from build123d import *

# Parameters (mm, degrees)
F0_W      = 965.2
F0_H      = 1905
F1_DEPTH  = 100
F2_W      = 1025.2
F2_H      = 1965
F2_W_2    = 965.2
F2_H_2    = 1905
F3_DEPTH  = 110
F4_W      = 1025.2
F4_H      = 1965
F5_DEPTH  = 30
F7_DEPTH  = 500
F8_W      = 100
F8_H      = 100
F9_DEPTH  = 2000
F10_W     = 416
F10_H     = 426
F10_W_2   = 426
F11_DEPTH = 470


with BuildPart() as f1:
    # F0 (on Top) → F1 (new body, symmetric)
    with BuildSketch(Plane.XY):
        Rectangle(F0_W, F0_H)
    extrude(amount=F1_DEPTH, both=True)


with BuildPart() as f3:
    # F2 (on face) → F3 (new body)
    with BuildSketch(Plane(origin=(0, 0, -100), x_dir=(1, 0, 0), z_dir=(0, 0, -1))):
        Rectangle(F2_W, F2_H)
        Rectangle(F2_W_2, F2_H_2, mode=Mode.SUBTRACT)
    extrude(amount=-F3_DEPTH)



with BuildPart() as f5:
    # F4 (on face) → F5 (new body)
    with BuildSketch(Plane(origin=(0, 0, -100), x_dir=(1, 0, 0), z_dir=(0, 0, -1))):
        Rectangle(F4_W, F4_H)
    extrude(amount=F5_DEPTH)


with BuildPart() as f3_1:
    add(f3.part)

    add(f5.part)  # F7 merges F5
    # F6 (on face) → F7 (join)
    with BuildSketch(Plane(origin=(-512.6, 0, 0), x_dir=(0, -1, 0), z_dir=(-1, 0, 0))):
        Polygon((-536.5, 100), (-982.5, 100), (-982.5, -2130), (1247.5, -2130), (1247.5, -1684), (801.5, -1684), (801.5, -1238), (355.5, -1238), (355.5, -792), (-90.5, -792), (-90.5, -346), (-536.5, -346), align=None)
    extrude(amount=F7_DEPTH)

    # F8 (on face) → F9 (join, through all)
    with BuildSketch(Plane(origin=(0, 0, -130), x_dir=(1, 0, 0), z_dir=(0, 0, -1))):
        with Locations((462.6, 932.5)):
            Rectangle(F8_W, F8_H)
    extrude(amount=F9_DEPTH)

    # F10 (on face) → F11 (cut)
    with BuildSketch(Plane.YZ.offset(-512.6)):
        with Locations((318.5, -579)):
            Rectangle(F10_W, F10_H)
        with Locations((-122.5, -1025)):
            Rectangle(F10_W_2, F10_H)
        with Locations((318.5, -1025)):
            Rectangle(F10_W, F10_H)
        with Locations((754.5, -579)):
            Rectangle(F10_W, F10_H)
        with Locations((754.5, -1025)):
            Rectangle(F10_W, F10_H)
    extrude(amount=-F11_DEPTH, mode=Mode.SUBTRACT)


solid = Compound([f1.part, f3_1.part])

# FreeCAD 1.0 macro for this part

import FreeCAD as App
import Part
import Sketcher

V = App.Vector
Q = App.Units.Quantity

doc = App.newDocument("Part")
body = doc.addObject("PartDesign::Body", "Body")

# Sketch on XY plane
sketch1 = body.newObject("Sketcher::SketchObject", "Sketch")
sketch1.AttachmentSupport = (doc.getObject("XY_Plane"), [""])
sketch1.MapMode = "FlatFace"
sketch1.addGeometry([
    Part.LineSegment(V(-482.6, 952.5, 0), V(-482.6, -952.5, 0)),
    Part.LineSegment(V(-482.6, -952.5, 0), V(482.6, -952.5, 0)),
    Part.LineSegment(V(482.6, -952.5, 0), V(482.6, 952.5, 0)),
    Part.LineSegment(V(482.6, 952.5, 0), V(-482.6, 952.5, 0)),
], False)
sketch1.addConstraint([
    Sketcher.Constraint("Coincident", 0, 2, 1, 1),
    Sketcher.Constraint("Coincident", 1, 2, 2, 1),
    Sketcher.Constraint("Coincident", 2, 2, 3, 1),
    Sketcher.Constraint("Coincident", 3, 2, 0, 1),
    Sketcher.Constraint("Vertical", 0),
    Sketcher.Constraint("Horizontal", 1),
    Sketcher.Constraint("Vertical", 2),
    Sketcher.Constraint("Horizontal", 3),
    Sketcher.Constraint("Symmetric", 0, 2, 2, 2, -1, 1),
    Sketcher.Constraint("DistanceY", 0, 2, 0, 1, Q("1905 mm")),
    Sketcher.Constraint("DistanceX", 1, 1, 1, 2, Q("965.2 mm")),
])
pad1 = body.newObject("PartDesign::Pad", "Pad")
pad1.Profile = sketch1
pad1.Length = 200
pad1.Midplane = True
body2 = doc.addObject("PartDesign::Body", "Body001")

# Sketch on XY plane
sketch2 = body2.newObject("Sketcher::SketchObject", "Sketch001")
sketch2.AttachmentSupport = (doc.getObject("XY_Plane001"), [""])
sketch2.MapMode = "FlatFace"
sketch2.AttachmentOffset = App.Placement(V(0, 0, -100), App.Rotation())
sketch2.addGeometry([
    Part.LineSegment(V(-512.6, -982.5, 0), V(-512.6, 982.5, 0)),  # 0
    Part.LineSegment(V(-512.6, 982.5, 0), V(512.6, 982.5, 0)),  # 1
    Part.LineSegment(V(512.6, 982.5, 0), V(512.6, -982.5, 0)),  # 2
    Part.LineSegment(V(512.6, -982.5, 0), V(-512.6, -982.5, 0)),  # 3
    Part.LineSegment(V(482.6, 952.5, 0), V(-482.6, 952.5, 0)),  # 4
    Part.LineSegment(V(-482.6, 952.5, 0), V(-482.6, -952.5, 0)),  # 5
    Part.LineSegment(V(-482.6, -952.5, 0), V(482.6, -952.5, 0)),  # 6
    Part.LineSegment(V(482.6, -952.5, 0), V(482.6, 952.5, 0)),  # 7
], False)
sketch2.addConstraint([
    Sketcher.Constraint("Coincident", 0, 2, 1, 1),
    Sketcher.Constraint("Coincident", 1, 2, 2, 1),
    Sketcher.Constraint("Coincident", 2, 2, 3, 1),
    Sketcher.Constraint("Coincident", 3, 2, 0, 1),
    Sketcher.Constraint("Coincident", 4, 2, 5, 1),
    Sketcher.Constraint("Coincident", 5, 2, 6, 1),
    Sketcher.Constraint("Coincident", 6, 2, 7, 1),
    Sketcher.Constraint("Coincident", 7, 2, 4, 1),
    Sketcher.Constraint("Vertical", 0),
    Sketcher.Constraint("Horizontal", 1),
    Sketcher.Constraint("Vertical", 2),
    Sketcher.Constraint("Horizontal", 3),
    Sketcher.Constraint("Horizontal", 4),
    Sketcher.Constraint("Vertical", 5),
    Sketcher.Constraint("Horizontal", 6),
    Sketcher.Constraint("Vertical", 7),
    Sketcher.Constraint("Symmetric", 0, 2, 2, 2, -1, 1),
    Sketcher.Constraint("Symmetric", 4, 2, 6, 2, -1, 1),
    Sketcher.Constraint("DistanceY", 0, 1, 0, 2, Q("1965 mm")),
    Sketcher.Constraint("DistanceY", 5, 2, 5, 1, Q("1905 mm")),
    Sketcher.Constraint("DistanceX", 1, 1, 1, 2, Q("1025.2 mm")),
    Sketcher.Constraint("DistanceX", 4, 2, 4, 1, Q("965.2 mm")),
])
pad2 = body2.newObject("PartDesign::Pad", "Pad001")
pad2.Profile = sketch2
pad2.Length = 110
body3 = doc.addObject("PartDesign::Body", "Body002")

# Sketch on XY plane
sketch3 = body3.newObject("Sketcher::SketchObject", "Sketch002")
sketch3.AttachmentSupport = (doc.getObject("XY_Plane002"), [""])
sketch3.MapMode = "FlatFace"
sketch3.AttachmentOffset = App.Placement(V(0, 0, -100), App.Rotation())
sketch3.addGeometry([
    Part.LineSegment(V(-512.6, -982.5, 0), V(-512.6, 982.5, 0)),
    Part.LineSegment(V(-512.6, 982.5, 0), V(512.6, 982.5, 0)),
    Part.LineSegment(V(512.6, 982.5, 0), V(512.6, -982.5, 0)),
    Part.LineSegment(V(512.6, -982.5, 0), V(-512.6, -982.5, 0)),
], False)
sketch3.addConstraint([
    Sketcher.Constraint("Coincident", 0, 2, 1, 1),
    Sketcher.Constraint("Coincident", 1, 2, 2, 1),
    Sketcher.Constraint("Coincident", 2, 2, 3, 1),
    Sketcher.Constraint("Coincident", 3, 2, 0, 1),
    Sketcher.Constraint("Vertical", 0),
    Sketcher.Constraint("Horizontal", 1),
    Sketcher.Constraint("Vertical", 2),
    Sketcher.Constraint("Horizontal", 3),
    Sketcher.Constraint("Symmetric", 0, 2, 2, 2, -1, 1),
    Sketcher.Constraint("DistanceY", 0, 1, 0, 2, Q("1965 mm")),
    Sketcher.Constraint("DistanceX", 1, 1, 1, 2, Q("1025.2 mm")),
])
pad3 = body3.newObject("PartDesign::Pad", "Pad002")
pad3.Profile = sketch3
pad3.Length = 30
pad3.Reversed = True
doc.recompute()

boolean = body2.newObject("PartDesign::Boolean", "Boolean")
boolean.Type = "Fuse"
boolean.addObjects([body3])

# Sketch on YZ plane
sketch4 = body2.newObject("Sketcher::SketchObject", "Sketch003")
sketch4.AttachmentSupport = (doc.getObject("YZ_Plane001"), [""])
sketch4.MapMode = "FlatFace"
sketch4.AttachmentOffset = App.Placement(V(0, 0, -512.6), App.Rotation())
sketch4.addGeometry([
    Part.LineSegment(V(536.5, 100, 0), V(982.5, 100, 0)),  # 0
    Part.LineSegment(V(982.5, 100, 0), V(982.5, -2130, 0)),  # 1
    Part.LineSegment(V(982.5, -2130, 0), V(-1247.5, -2130, 0)),  # 2
    Part.LineSegment(V(-1247.5, -2130, 0), V(-1247.5, -1684, 0)),  # 3
    Part.LineSegment(V(-1247.5, -1684, 0), V(-801.5, -1684, 0)),  # 4
    Part.LineSegment(V(-801.5, -1684, 0), V(-801.5, -1238, 0)),  # 5
    Part.LineSegment(V(-801.5, -1238, 0), V(-355.5, -1238, 0)),  # 6
    Part.LineSegment(V(-355.5, -1238, 0), V(-355.5, -792, 0)),  # 7
    Part.LineSegment(V(-355.5, -792, 0), V(90.5, -792, 0)),  # 8
    Part.LineSegment(V(90.5, -792, 0), V(90.5, -346, 0)),  # 9
    Part.LineSegment(V(90.5, -346, 0), V(536.5, -346, 0)),  # 10
    Part.LineSegment(V(536.5, -346, 0), V(536.5, 100, 0)),  # 11
], False)
sketch4.addConstraint([
    Sketcher.Constraint("Coincident", 0, 2, 1, 1),
    Sketcher.Constraint("Coincident", 1, 2, 2, 1),
    Sketcher.Constraint("Coincident", 2, 2, 3, 1),
    Sketcher.Constraint("Coincident", 3, 2, 4, 1),
    Sketcher.Constraint("Coincident", 4, 2, 5, 1),
    Sketcher.Constraint("Coincident", 5, 2, 6, 1),
    Sketcher.Constraint("Coincident", 6, 2, 7, 1),
    Sketcher.Constraint("Coincident", 7, 2, 8, 1),
    Sketcher.Constraint("Coincident", 8, 2, 9, 1),
    Sketcher.Constraint("Coincident", 9, 2, 10, 1),
    Sketcher.Constraint("Coincident", 10, 2, 11, 1),
    Sketcher.Constraint("Coincident", 11, 2, 0, 1),
    Sketcher.Constraint("Horizontal", 0),
    Sketcher.Constraint("Vertical", 1),
    Sketcher.Constraint("Horizontal", 2),
    Sketcher.Constraint("Vertical", 3),
    Sketcher.Constraint("Horizontal", 4),
    Sketcher.Constraint("Vertical", 5),
    Sketcher.Constraint("Horizontal", 6),
    Sketcher.Constraint("Vertical", 7),
    Sketcher.Constraint("Horizontal", 8),
    Sketcher.Constraint("Vertical", 9),
    Sketcher.Constraint("Horizontal", 10),
    Sketcher.Constraint("Vertical", 11),
    Sketcher.Constraint("Equal", 0, 4),
    Sketcher.Constraint("Equal", 4, 6),
    Sketcher.Constraint("Equal", 6, 8),
    Sketcher.Constraint("Equal", 8, 10),
    Sketcher.Constraint("Equal", 2, 1),
    Sketcher.Constraint("Equal", 10, 3),
    Sketcher.Constraint("Equal", 3, 5),
    Sketcher.Constraint("Equal", 5, 7),
    Sketcher.Constraint("Equal", 7, 9),
    Sketcher.Constraint("DistanceX", 0, 1, 0, 2, Q("446 mm")),
    Sketcher.Constraint("DistanceY", -1, 1, 0, 2, Q("100 mm")),
    Sketcher.Constraint("DistanceX", -1, 1, 0, 2, Q("982.5 mm")),
])
pad4 = body2.newObject("PartDesign::Pad", "Pad003")
pad4.Profile = sketch4
pad4.Length = 500
pad4.Reversed = True

# Sketch on XY plane
sketch5 = body2.newObject("Sketcher::SketchObject", "Sketch004")
sketch5.AttachmentSupport = (doc.getObject("XY_Plane001"), [""])
sketch5.MapMode = "FlatFace"
sketch5.AttachmentOffset = App.Placement(V(0, 0, -130), App.Rotation())
sketch5.addGeometry([
    Part.LineSegment(V(412.6, -982.5, 0), V(412.6, -882.5, 0)),
    Part.LineSegment(V(412.6, -882.5, 0), V(512.6, -882.5, 0)),
    Part.LineSegment(V(512.6, -882.5, 0), V(512.6, -982.5, 0)),
    Part.LineSegment(V(512.6, -982.5, 0), V(412.6, -982.5, 0)),
], False)
sketch5.addConstraint([
    Sketcher.Constraint("Coincident", 0, 2, 1, 1),
    Sketcher.Constraint("Coincident", 1, 2, 2, 1),
    Sketcher.Constraint("Coincident", 2, 2, 3, 1),
    Sketcher.Constraint("Coincident", 3, 2, 0, 1),
    Sketcher.Constraint("Vertical", 0),
    Sketcher.Constraint("Horizontal", 1),
    Sketcher.Constraint("Vertical", 2),
    Sketcher.Constraint("Horizontal", 3),
    Sketcher.Constraint("Equal", 3, 0),
    Sketcher.Constraint("DistanceX", 1, 1, 1, 2, Q("100 mm")),
    Sketcher.Constraint("DistanceX", -1, 1, 0, 2, Q("412.6 mm")),
    Sketcher.Constraint("DistanceY", 0, 2, -1, 1, Q("882.5 mm")),
])
pad5 = body2.newObject("PartDesign::Pad", "Pad004")
pad5.Profile = sketch5
pad5.Length = 2000
pad5.Reversed = True

# Sketch on YZ plane
sketch6 = body2.newObject("Sketcher::SketchObject", "Sketch005")
sketch6.AttachmentSupport = (doc.getObject("YZ_Plane001"), [""])
sketch6.MapMode = "FlatFace"
sketch6.AttachmentOffset = App.Placement(V(0, 0, -512.6), App.Rotation())
sketch6.addGeometry([
    Part.LineSegment(V(110.5, -366, 0), V(110.5, -792, 0)),  # 0
    Part.LineSegment(V(110.5, -792, 0), V(526.5, -792, 0)),  # 1
    Part.LineSegment(V(526.5, -792, 0), V(526.5, -366, 0)),  # 2
    Part.LineSegment(V(526.5, -366, 0), V(110.5, -366, 0)),  # 3
    Part.LineSegment(V(-335.5, -812, 0), V(-335.5, -1238, 0)),  # 4
    Part.LineSegment(V(-335.5, -1238, 0), V(90.5, -1238, 0)),  # 5
    Part.LineSegment(V(90.5, -1238, 0), V(90.5, -812, 0)),  # 6
    Part.LineSegment(V(90.5, -812, 0), V(-335.5, -812, 0)),  # 7
    Part.LineSegment(V(110.5, -812, 0), V(110.5, -1238, 0)),  # 8
    Part.LineSegment(V(110.5, -1238, 0), V(526.5, -1238, 0)),  # 9
    Part.LineSegment(V(526.5, -1238, 0), V(526.5, -812, 0)),  # 10
    Part.LineSegment(V(526.5, -812, 0), V(110.5, -812, 0)),  # 11
    Part.LineSegment(V(546.5, -366, 0), V(546.5, -792, 0)),  # 12
    Part.LineSegment(V(546.5, -792, 0), V(962.5, -792, 0)),  # 13
    Part.LineSegment(V(962.5, -792, 0), V(962.5, -366, 0)),  # 14
    Part.LineSegment(V(962.5, -366, 0), V(546.5, -366, 0)),  # 15
    Part.LineSegment(V(546.5, -812, 0), V(546.5, -1238, 0)),  # 16
    Part.LineSegment(V(546.5, -1238, 0), V(962.5, -1238, 0)),  # 17
    Part.LineSegment(V(962.5, -1238, 0), V(962.5, -812, 0)),  # 18
    Part.LineSegment(V(962.5, -812, 0), V(546.5, -812, 0)),  # 19
], False)
sketch6.addConstraint([
    Sketcher.Constraint("Coincident", 0, 2, 1, 1),
    Sketcher.Constraint("Coincident", 1, 2, 2, 1),
    Sketcher.Constraint("Coincident", 2, 2, 3, 1),
    Sketcher.Constraint("Coincident", 3, 2, 0, 1),
    Sketcher.Constraint("Coincident", 4, 2, 5, 1),
    Sketcher.Constraint("Coincident", 5, 2, 6, 1),
    Sketcher.Constraint("Coincident", 6, 2, 7, 1),
    Sketcher.Constraint("Coincident", 7, 2, 4, 1),
    Sketcher.Constraint("Coincident", 8, 2, 9, 1),
    Sketcher.Constraint("Coincident", 9, 2, 10, 1),
    Sketcher.Constraint("Coincident", 10, 2, 11, 1),
    Sketcher.Constraint("Coincident", 11, 2, 8, 1),
    Sketcher.Constraint("Coincident", 12, 2, 13, 1),
    Sketcher.Constraint("Coincident", 13, 2, 14, 1),
    Sketcher.Constraint("Coincident", 14, 2, 15, 1),
    Sketcher.Constraint("Coincident", 15, 2, 12, 1),
    Sketcher.Constraint("Coincident", 16, 2, 17, 1),
    Sketcher.Constraint("Coincident", 17, 2, 18, 1),
    Sketcher.Constraint("Coincident", 18, 2, 19, 1),
    Sketcher.Constraint("Coincident", 19, 2, 16, 1),
    Sketcher.Constraint("Vertical", 0),
    Sketcher.Constraint("Horizontal", 1),
    Sketcher.Constraint("Vertical", 2),
    Sketcher.Constraint("Horizontal", 3),
    Sketcher.Constraint("Vertical", 4),
    Sketcher.Constraint("Horizontal", 5),
    Sketcher.Constraint("Vertical", 6),
    Sketcher.Constraint("Horizontal", 7),
    Sketcher.Constraint("Vertical", 8),
    Sketcher.Constraint("Horizontal", 9),
    Sketcher.Constraint("Vertical", 10),
    Sketcher.Constraint("Horizontal", 11),
    Sketcher.Constraint("Vertical", 12),
    Sketcher.Constraint("Horizontal", 13),
    Sketcher.Constraint("Vertical", 14),
    Sketcher.Constraint("Horizontal", 15),
    Sketcher.Constraint("Vertical", 16),
    Sketcher.Constraint("Horizontal", 17),
    Sketcher.Constraint("Vertical", 18),
    Sketcher.Constraint("Horizontal", 19),
    Sketcher.Constraint("Horizontal", 5, 2, 8, 2),
    Sketcher.Constraint("Horizontal", 7, 2, 10, 2),
    Sketcher.Constraint("Horizontal", 1, 2, 12, 2),
    Sketcher.Constraint("Horizontal", 3, 2, 14, 2),
    Sketcher.Constraint("Horizontal", 9, 2, 16, 2),
    Sketcher.Constraint("Horizontal", 11, 2, 18, 2),
    Sketcher.Constraint("Vertical", 3, 2, 8, 2),
    Sketcher.Constraint("Vertical", 2, 2, 9, 2),
    Sketcher.Constraint("Vertical", 15, 2, 16, 2),
    Sketcher.Constraint("Vertical", 14, 2, 17, 2),
    Sketcher.Constraint("Equal", 11, 13),
    Sketcher.Constraint("Equal", 7, 0),
    Sketcher.Constraint("Equal", 2, 4),
    Sketcher.Constraint("DistanceX", 1, 1, 1, 2, Q("416 mm")),
    Sketcher.Constraint("DistanceX", 5, 1, 5, 2, Q("426 mm")),
    Sketcher.Constraint("DistanceY", 0, 2, -1, 1, Q("792 mm")),
    Sketcher.Constraint("DistanceY", 4, 2, -1, 1, Q("1238 mm")),
    Sketcher.Constraint("DistanceX", 4, 2, 0, 2, Q("446 mm")),
    Sketcher.Constraint("DistanceX", 1, 2, 12, 2, Q("20 mm")),
    Sketcher.Constraint("DistanceX", -1, 1, 0, 2, Q("110.5 mm")),
])
pocket1 = body2.newObject("PartDesign::Pocket", "Pocket")
pocket1.Profile = sketch6
pocket1.Length = 470

doc.recompute()
